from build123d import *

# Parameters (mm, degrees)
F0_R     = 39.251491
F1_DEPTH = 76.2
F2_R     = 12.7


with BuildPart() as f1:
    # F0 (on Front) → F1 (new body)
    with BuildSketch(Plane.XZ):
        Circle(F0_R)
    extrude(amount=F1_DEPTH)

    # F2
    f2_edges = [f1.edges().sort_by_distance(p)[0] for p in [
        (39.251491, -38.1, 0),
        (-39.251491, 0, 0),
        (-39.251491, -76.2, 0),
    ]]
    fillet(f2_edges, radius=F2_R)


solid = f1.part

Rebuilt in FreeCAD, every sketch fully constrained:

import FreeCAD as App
import Part
import Sketcher

V = App.Vector
Q = App.Units.Quantity

doc = App.newDocument("Part")
params = doc.addObject("Spreadsheet::Sheet", "Params")
for row, (alias, value) in enumerate([
    ("pad1_length", "3 in"),
    ("fillet_radius", "0.5 in"),
], start=1):
    params.set(f"A{row}", alias)
    params.set(f"B{row}", "=" + value)
    params.setAlias(f"B{row}", alias)

body = doc.addObject("PartDesign::Body", "Body")

# Sketch on XZ plane
sketch1 = doc.addObject("Sketcher::SketchObject", "Sketch")
body.addObject(sketch1)
sketch1.AttachmentSupport = (doc.XZ_Plane, [""])
sketch1.MapMode = "FlatFace"
sketch1.addGeometry(Part.Circle(V(0, 0, 0), V(0, 0, 1), 39), False)
sketch1.addConstraint(Sketcher.Constraint("Coincident", 0, 3, -1, 1))
sketch1.addConstraint(Sketcher.Constraint("Diameter", 0, Q("78.502982 mm")))
pad1 = doc.addObject("PartDesign::Pad", "Pad")
body.addObject(pad1)
pad1.Profile = sketch1
pad1.setExpression("Length", "Params.pad1_length")
doc.recompute()

fillet = doc.addObject("PartDesign::Fillet", "Fillet")
body.addObject(fillet)
fillet.Base = (pad1, ["Edge1"])
fillet.UseAllEdges = True
fillet.setExpression("Radius", "Params.fillet_radius")

doc.recompute()
